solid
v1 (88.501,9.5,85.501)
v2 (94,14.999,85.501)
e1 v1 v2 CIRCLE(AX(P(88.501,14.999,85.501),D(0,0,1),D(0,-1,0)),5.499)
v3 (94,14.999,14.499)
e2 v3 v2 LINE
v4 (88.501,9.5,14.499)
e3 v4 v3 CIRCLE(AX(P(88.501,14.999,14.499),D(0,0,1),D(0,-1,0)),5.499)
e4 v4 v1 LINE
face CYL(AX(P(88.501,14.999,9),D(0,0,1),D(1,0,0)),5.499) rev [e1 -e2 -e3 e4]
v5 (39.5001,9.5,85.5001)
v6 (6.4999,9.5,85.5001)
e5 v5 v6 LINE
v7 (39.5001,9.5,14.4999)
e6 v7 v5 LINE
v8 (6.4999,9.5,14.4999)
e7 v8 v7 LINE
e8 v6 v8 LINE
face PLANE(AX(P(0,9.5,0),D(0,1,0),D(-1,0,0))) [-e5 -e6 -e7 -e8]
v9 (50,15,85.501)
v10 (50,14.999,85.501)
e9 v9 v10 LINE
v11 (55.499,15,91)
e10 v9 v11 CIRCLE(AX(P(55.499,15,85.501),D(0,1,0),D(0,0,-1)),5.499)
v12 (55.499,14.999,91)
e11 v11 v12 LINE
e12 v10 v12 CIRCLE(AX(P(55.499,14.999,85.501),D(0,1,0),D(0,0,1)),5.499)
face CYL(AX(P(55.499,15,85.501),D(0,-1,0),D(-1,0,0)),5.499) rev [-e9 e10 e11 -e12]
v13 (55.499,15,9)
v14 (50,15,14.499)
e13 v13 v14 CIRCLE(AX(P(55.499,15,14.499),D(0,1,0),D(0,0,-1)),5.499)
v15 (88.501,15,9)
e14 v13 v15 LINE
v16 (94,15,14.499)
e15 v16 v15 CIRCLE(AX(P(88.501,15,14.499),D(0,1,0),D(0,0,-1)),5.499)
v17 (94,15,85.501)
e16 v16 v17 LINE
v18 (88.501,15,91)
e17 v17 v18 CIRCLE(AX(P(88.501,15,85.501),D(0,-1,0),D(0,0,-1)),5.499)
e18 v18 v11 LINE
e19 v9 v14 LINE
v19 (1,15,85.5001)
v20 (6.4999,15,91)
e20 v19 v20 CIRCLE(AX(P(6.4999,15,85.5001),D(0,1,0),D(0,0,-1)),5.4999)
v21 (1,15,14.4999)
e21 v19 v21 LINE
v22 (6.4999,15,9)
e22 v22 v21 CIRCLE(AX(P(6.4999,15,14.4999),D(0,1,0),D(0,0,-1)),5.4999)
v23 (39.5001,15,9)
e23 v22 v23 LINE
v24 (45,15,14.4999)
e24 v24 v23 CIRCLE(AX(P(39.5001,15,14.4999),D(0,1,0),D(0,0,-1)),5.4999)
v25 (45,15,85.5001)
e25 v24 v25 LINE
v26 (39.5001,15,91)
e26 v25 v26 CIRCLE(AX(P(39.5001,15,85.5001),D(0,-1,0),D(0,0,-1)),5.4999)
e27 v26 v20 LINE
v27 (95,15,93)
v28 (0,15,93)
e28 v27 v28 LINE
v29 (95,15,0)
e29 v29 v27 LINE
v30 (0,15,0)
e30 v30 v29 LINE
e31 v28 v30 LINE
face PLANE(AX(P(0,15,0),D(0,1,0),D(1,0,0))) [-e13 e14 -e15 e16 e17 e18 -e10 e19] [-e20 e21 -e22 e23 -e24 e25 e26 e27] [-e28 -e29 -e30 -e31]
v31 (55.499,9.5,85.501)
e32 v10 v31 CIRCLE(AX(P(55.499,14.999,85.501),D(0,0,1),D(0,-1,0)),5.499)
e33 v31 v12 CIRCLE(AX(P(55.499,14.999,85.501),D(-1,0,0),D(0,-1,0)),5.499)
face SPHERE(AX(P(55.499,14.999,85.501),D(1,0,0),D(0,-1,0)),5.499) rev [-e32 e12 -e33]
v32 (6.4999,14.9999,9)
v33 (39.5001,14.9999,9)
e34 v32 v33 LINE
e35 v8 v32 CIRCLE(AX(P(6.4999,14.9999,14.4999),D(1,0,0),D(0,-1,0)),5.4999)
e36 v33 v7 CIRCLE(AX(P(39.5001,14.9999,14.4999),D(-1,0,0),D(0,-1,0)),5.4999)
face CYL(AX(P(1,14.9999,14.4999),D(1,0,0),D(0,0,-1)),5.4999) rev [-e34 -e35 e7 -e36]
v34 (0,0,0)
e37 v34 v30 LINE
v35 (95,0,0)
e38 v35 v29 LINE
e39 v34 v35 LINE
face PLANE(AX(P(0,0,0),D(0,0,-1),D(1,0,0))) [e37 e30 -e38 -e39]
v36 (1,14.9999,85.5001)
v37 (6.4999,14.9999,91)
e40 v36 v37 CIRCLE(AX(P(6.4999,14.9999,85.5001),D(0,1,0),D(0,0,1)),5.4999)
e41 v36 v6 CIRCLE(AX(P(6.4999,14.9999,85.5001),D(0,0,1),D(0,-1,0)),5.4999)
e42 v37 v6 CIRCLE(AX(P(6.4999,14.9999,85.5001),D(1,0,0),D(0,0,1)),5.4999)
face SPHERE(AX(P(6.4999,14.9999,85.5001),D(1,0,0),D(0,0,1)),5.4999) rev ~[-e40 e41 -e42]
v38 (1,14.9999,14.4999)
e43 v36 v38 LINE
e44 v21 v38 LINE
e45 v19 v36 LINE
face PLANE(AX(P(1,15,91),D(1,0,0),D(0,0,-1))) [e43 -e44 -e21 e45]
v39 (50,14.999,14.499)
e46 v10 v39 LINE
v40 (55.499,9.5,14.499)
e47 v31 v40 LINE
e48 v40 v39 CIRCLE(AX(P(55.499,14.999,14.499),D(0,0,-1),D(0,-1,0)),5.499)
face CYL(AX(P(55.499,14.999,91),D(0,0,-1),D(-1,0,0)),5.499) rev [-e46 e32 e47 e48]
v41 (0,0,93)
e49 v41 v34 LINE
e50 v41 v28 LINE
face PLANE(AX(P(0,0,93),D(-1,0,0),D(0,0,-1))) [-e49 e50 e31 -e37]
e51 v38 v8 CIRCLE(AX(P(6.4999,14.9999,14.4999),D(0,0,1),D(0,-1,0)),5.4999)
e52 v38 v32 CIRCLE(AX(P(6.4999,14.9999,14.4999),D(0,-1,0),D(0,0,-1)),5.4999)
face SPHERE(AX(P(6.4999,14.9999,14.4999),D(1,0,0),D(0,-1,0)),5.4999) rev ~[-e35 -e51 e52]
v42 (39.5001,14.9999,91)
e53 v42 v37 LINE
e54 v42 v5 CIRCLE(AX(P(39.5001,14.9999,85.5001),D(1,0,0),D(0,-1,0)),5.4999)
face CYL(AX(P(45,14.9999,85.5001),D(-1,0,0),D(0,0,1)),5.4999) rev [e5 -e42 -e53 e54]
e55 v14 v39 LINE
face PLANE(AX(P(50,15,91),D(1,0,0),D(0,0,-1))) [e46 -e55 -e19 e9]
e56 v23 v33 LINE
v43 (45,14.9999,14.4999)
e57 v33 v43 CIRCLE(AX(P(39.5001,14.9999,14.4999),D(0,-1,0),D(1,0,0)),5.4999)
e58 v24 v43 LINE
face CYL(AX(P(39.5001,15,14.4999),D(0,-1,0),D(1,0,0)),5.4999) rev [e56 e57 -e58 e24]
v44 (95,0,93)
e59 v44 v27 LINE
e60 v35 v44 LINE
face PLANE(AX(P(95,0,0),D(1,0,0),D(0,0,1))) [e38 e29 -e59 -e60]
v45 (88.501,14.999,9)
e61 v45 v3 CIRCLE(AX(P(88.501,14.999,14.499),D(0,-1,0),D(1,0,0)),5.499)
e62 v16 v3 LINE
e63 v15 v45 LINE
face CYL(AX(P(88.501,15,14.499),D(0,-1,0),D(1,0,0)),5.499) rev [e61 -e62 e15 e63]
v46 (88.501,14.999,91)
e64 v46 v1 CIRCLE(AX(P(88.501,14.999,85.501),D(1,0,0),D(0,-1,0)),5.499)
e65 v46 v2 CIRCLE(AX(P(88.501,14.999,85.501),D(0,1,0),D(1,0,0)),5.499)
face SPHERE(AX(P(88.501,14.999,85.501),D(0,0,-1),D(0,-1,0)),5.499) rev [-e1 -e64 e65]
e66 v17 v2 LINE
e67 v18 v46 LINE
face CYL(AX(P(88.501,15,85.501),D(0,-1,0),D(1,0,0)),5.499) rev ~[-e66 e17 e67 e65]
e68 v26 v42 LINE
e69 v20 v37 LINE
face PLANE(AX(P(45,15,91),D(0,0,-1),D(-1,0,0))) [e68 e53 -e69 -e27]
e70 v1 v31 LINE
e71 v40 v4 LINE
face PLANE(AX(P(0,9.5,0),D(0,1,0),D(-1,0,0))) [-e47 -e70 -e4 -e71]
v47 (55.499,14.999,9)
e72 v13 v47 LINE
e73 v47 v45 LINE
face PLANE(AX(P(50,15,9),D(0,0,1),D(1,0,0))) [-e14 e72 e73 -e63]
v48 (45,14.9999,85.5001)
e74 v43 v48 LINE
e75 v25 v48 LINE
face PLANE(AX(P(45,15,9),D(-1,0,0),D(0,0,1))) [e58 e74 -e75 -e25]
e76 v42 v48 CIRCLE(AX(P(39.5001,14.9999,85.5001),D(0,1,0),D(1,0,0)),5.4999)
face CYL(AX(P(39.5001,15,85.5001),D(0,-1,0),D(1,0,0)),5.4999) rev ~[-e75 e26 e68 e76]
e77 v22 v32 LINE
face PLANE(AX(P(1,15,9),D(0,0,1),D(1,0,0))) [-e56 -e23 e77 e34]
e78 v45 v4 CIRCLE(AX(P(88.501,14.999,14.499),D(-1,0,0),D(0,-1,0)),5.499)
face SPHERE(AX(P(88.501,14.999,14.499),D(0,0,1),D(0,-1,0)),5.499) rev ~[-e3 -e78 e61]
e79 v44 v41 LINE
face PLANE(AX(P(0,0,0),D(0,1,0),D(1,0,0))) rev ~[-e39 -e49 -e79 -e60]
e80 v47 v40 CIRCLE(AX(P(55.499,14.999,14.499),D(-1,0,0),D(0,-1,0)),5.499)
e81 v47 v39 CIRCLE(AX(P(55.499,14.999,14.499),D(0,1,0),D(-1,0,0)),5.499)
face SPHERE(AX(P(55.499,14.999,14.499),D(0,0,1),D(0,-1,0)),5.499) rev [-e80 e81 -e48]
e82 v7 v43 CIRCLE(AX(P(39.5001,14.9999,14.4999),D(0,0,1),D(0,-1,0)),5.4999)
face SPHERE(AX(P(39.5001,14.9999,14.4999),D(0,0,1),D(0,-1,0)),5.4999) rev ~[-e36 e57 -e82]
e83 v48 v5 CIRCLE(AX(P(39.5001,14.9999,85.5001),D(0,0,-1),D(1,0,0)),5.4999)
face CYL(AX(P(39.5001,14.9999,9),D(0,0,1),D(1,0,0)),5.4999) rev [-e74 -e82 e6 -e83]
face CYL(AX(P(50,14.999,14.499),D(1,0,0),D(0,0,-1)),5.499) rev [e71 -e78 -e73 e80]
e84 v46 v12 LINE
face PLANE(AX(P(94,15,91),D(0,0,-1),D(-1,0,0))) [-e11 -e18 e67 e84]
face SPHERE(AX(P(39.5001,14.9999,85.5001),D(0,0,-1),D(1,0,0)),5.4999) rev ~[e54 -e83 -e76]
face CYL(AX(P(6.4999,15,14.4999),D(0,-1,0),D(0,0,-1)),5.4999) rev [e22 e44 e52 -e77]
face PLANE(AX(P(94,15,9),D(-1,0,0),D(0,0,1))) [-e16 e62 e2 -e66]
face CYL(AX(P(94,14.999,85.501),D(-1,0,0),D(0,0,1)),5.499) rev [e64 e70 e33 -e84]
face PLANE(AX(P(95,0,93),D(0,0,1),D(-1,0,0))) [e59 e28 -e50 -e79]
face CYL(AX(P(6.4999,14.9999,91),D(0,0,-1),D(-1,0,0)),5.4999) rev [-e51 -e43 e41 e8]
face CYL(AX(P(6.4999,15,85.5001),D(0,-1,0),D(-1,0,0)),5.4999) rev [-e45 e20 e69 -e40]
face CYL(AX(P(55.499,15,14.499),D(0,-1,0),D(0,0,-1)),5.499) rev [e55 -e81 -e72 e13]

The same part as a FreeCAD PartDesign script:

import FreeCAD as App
import Part
import Sketcher
from FreeCAD import Vector
Q = App.Units.Quantity


def edges_at(feature, points):
    """Names of the edges that pass closest to the given points."""
    edges = feature.Shape.Edges
    near = lambda p: min(range(len(edges)), key=lambda i: edges[i].distToShape(Part.Vertex(*p))[0])
    return sorted({f"Edge{near(p) + 1}" for p in points})


def add_polygon(sketch, points):
    """Adds a closed chain of lines whose ends are joined by coincident constraints."""
    first, n = sketch.GeometryCount, len(points)
    for a, b in zip(points, points[1:] + points[:1]):
        sketch.addGeometry(Part.LineSegment(App.Vector(*a, 0), App.Vector(*b, 0)), False)
    for i in range(n):
        sketch.addConstraint(Sketcher.Constraint("Coincident", first + i, 2, first + (i + 1) % n, 1))

doc = App.newDocument("Part")
body = doc.addObject("PartDesign::Body", "Body")

sketch1 = body.newObject("Sketcher::SketchObject", "Sketch")
sketch1.AttachmentSupport = (doc.getObject("XZ_Plane"), [""])
sketch1.MapMode = "FlatFace"
add_polygon(sketch1, [(95, 0), (0, 0), (0, 93), (95, 93)])
sketch1.addConstraint([
    Sketcher.Constraint("Horizontal", 0),
    Sketcher.Constraint("Vertical", 1),
    Sketcher.Constraint("Horizontal", 2),
    Sketcher.Constraint("Vertical", 3),
    Sketcher.Constraint("Coincident", 0, 2, -1, 1),
    Sketcher.Constraint("DistanceX", 0, 2, 0, 1, Q("95 mm")),
    Sketcher.Constraint("DistanceY", 1, 1, 1, 2, Q("93 mm")),
])
pad1 = body.newObject("PartDesign::Pad", "Pad")
pad1.Profile = sketch1
pad1.Length = 15
pad1.Reversed = True

sketch2 = body.newObject("Sketcher::SketchObject", "Sketch001")
sketch2.AttachmentSupport = (doc.getObject("XZ_Plane"), [""])
sketch2.MapMode = "FlatFace"
sketch2.AttachmentOffset = App.Placement(Vector(0, 0, -15), App.Rotation())
add_polygon(sketch2, [(50, 91), (94, 91), (94, 9), (50, 9)])
add_polygon(sketch2, [(1, 91), (45, 91), (45, 9), (1, 9)])
sketch2.addConstraint([
    Sketcher.Constraint("Horizontal", 0),
    Sketcher.Constraint("Vertical", 1),
    Sketcher.Constraint("Horizontal", 2),
    Sketcher.Constraint("Vertical", 3),
    Sketcher.Constraint("Horizontal", 4),
    Sketcher.Constraint("Vertical", 5),
    Sketcher.Constraint("Horizontal", 6),
    Sketcher.Constraint("Vertical", 7),
    Sketcher.Constraint("Horizontal", 3, 2, 4, 2),
    Sketcher.Constraint("Horizontal", 2, 2, 5, 2),
    Sketcher.Constraint("Equal", 2, 4),
    Sketcher.Constraint("DistanceX", 0, 1, 0, 2, Q("44 mm")),
    Sketcher.Constraint("DistanceY", 1, 2, 1, 1, Q("82 mm")),
    Sketcher.Constraint("DistanceX", -1, 1, 6, 2, Q("1 mm")),
    Sketcher.Constraint("DistanceX", 4, 2, 3, 2, Q("5 mm")),
    Sketcher.Constraint("DistanceY", -1, 1, 0, 2, Q("91 mm")),
])
pocket1 = body.newObject("PartDesign::Pocket", "Pocket")
pocket1.Profile = sketch2
pocket1.Length = 5.5
pocket1.Reversed = True
doc.recompute()

fillet = body.newObject("PartDesign::Fillet", "Fillet")
fillet.Base = (pocket1, edges_at(pocket1, [
    (94, 9.5, 50),
    (72, 9.5, 91),
    (50, 9.5, 50),
    (72, 9.5, 9),
    (50, 12.25, 91),
    (94, 12.25, 91),
    (94, 12.25, 9),
    (50, 12.25, 9),
]))
fillet.Radius = 5.499
doc.recompute()

fillet2 = body.newObject("PartDesign::Fillet", "Fillet001")
fillet2.Base = (fillet, edges_at(fillet, [
    (45, 9.5, 50),
    (23, 9.5, 9),
    (45, 12.25, 9),
    (45, 12.25, 91),
    (23, 9.5, 91),
    (1, 12.25, 91),
    (1, 9.5, 50),
    (1, 12.25, 9),
]))
fillet2.Radius = 5.4999

doc.recompute()
